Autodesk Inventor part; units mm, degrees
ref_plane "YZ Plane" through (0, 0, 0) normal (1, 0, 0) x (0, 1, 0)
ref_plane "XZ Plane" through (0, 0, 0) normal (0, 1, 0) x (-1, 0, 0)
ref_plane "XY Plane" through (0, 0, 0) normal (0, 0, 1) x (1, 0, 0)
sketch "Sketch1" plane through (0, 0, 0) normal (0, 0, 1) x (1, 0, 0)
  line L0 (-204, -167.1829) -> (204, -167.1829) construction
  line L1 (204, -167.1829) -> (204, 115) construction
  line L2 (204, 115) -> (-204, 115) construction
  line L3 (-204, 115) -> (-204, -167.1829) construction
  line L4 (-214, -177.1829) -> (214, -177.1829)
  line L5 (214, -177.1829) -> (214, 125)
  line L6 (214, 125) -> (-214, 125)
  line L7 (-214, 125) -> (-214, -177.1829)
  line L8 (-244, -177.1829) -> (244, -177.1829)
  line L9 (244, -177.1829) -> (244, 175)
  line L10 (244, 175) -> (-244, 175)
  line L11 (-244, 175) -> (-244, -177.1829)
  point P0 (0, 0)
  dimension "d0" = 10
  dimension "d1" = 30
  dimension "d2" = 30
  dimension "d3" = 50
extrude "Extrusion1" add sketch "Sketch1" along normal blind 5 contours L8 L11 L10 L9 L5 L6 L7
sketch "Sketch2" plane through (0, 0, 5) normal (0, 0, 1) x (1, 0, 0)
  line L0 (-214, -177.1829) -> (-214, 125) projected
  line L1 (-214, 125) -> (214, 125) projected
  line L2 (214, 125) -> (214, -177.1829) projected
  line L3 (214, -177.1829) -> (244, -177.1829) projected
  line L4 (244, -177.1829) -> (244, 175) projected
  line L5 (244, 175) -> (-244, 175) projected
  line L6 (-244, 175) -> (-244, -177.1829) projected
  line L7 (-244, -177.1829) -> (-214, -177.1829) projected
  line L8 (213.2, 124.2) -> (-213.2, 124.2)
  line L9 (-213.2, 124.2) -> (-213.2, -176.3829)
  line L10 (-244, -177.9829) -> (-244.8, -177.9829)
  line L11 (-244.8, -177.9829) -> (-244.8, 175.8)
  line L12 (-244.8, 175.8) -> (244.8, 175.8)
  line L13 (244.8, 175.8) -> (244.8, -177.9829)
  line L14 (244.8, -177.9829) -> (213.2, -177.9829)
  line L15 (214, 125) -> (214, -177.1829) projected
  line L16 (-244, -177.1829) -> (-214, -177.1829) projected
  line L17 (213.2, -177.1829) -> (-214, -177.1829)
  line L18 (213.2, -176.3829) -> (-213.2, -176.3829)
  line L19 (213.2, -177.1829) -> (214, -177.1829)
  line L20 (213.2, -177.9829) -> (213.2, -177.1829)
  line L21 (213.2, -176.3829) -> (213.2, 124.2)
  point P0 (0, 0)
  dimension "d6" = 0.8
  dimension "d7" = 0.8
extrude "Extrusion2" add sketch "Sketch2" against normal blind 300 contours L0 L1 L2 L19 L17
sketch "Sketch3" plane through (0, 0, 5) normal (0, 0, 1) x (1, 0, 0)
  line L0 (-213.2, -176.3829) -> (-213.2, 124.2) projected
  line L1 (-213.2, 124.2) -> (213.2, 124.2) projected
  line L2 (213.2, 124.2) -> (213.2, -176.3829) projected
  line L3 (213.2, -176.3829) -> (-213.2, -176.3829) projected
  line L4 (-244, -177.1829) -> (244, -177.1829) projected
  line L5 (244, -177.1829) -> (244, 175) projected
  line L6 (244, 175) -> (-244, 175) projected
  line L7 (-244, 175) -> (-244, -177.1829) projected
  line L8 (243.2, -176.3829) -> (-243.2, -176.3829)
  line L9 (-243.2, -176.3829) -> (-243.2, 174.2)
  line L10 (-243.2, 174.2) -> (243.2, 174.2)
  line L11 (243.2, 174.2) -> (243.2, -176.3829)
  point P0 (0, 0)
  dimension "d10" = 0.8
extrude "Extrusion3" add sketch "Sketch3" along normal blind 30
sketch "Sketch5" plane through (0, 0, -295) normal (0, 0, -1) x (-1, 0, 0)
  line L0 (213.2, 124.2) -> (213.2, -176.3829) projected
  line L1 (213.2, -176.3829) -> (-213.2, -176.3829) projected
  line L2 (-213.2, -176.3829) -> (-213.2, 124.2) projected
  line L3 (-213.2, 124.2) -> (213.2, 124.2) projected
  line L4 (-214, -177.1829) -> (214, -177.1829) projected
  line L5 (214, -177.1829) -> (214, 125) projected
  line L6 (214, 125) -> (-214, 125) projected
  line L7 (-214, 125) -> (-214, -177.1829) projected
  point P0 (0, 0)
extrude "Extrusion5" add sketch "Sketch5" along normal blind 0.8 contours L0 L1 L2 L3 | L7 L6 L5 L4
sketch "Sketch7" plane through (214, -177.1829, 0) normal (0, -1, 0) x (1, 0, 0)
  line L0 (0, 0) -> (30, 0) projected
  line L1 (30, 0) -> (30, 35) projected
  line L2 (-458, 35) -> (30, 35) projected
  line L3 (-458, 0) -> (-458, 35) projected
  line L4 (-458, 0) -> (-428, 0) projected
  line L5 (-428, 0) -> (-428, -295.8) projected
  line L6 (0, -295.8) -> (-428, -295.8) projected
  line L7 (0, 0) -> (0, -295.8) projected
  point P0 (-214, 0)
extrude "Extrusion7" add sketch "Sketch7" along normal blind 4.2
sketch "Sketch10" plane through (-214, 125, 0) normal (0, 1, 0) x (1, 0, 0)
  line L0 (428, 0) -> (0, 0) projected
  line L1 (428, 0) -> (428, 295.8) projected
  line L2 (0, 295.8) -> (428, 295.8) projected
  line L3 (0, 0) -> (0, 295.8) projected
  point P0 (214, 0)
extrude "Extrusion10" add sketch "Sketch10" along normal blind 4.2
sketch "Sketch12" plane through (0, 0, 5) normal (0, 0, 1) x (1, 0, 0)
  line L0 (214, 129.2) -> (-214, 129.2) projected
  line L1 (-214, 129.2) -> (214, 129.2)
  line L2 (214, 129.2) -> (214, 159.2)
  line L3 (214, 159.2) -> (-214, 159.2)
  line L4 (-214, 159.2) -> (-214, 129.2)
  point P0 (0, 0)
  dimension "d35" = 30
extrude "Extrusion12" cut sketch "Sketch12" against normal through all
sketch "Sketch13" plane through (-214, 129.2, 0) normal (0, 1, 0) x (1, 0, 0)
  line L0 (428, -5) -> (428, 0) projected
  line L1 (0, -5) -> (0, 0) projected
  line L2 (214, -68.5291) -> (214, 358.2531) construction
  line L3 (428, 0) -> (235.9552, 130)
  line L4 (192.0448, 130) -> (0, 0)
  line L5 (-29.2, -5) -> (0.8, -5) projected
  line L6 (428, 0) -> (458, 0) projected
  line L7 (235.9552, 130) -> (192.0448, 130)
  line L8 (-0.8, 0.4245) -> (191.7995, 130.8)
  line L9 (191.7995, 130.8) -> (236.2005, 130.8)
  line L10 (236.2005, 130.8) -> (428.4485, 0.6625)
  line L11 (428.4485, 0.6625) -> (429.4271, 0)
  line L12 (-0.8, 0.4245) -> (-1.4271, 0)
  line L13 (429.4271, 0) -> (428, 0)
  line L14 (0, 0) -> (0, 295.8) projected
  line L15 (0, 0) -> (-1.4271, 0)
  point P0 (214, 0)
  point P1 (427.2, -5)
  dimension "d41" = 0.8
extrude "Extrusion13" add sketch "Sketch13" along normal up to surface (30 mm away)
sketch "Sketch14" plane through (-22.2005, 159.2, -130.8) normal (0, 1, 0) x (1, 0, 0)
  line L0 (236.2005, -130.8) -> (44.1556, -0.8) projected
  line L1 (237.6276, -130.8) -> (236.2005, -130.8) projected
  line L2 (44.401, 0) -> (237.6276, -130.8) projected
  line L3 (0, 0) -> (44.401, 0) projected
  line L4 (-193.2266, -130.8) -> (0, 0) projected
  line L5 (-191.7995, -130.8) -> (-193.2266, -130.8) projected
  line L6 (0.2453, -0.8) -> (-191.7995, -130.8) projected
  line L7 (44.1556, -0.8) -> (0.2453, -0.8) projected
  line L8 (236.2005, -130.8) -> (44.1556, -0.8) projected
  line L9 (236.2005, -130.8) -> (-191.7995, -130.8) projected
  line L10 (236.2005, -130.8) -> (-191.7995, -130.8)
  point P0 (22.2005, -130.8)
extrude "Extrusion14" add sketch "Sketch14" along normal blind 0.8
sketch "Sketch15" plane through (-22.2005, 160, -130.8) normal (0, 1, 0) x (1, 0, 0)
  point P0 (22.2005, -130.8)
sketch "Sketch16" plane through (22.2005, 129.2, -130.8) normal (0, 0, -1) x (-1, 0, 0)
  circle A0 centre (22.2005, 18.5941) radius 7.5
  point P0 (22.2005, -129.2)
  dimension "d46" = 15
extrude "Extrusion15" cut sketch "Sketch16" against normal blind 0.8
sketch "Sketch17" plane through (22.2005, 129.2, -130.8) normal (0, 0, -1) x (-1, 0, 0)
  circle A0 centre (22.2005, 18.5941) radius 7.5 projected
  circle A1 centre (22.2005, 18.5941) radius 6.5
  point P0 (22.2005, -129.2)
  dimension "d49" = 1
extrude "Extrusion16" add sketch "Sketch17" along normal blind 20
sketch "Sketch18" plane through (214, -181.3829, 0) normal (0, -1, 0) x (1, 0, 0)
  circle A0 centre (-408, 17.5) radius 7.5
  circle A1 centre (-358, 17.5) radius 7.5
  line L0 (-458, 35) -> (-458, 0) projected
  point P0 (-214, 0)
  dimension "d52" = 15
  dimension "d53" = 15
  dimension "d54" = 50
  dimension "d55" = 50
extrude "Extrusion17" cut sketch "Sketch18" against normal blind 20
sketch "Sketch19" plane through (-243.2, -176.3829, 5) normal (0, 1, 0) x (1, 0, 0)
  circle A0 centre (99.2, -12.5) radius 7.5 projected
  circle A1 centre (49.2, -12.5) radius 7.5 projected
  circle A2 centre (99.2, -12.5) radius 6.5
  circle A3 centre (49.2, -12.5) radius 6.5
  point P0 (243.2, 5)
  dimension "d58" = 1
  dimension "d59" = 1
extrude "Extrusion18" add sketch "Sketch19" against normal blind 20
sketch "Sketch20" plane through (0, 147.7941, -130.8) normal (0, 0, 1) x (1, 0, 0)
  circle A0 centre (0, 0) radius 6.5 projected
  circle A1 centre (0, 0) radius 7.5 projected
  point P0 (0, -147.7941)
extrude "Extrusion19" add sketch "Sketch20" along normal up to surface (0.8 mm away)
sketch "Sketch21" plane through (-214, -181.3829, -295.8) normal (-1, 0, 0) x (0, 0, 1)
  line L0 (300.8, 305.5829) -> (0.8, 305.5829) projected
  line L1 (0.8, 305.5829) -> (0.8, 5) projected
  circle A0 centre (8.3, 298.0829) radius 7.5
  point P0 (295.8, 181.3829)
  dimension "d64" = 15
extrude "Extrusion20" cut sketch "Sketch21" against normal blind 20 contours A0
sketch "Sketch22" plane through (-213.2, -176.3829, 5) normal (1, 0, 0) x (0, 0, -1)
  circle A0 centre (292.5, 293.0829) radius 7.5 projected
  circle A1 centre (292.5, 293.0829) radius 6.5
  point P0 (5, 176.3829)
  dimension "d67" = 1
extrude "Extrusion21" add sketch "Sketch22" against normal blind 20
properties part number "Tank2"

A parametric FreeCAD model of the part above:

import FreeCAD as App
import Part
import Sketcher
from FreeCAD import Vector

doc = App.newDocument("Part")
body = doc.addObject("PartDesign::Body", "Body")
body.AllowCompound = True

# Sketch on XY plane
sketch1 = body.newObject("Sketcher::SketchObject", "Sketch")
sketch1.AttachmentSupport = (doc.getObject("XY_Plane"), [""])
sketch1.MapMode = "FlatFace"
sketch1.addGeometry(Part.LineSegment(Vector(-244, -177, 0), Vector(-214, -177, 0)), False)
sketch1.addGeometry(Part.LineSegment(Vector(-214, -177, 0), Vector(-214, 125, 0)), False)
sketch1.addGeometry(Part.LineSegment(Vector(-214, 125, 0), Vector(214, 125, 0)), False)
sketch1.addGeometry(Part.LineSegment(Vector(214, 125, 0), Vector(214, -177, 0)), False)
sketch1.addGeometry(Part.LineSegment(Vector(214, -177, 0), Vector(244, -177, 0)), False)
sketch1.addGeometry(Part.LineSegment(Vector(244, -177, 0), Vector(244, 175, 0)), False)
sketch1.addGeometry(Part.LineSegment(Vector(244, 175, 0), Vector(-244, 175, 0)), False)
sketch1.addGeometry(Part.LineSegment(Vector(-244, 175, 0), Vector(-244, -177, 0)), False)
sketch1.addConstraint(Sketcher.Constraint("Coincident", 0, 2, 1, 1))
sketch1.addConstraint(Sketcher.Constraint("Coincident", 1, 2, 2, 1))
sketch1.addConstraint(Sketcher.Constraint("Coincident", 2, 2, 3, 1))
sketch1.addConstraint(Sketcher.Constraint("Coincident", 3, 2, 4, 1))
sketch1.addConstraint(Sketcher.Constraint("Coincident", 4, 2, 5, 1))
sketch1.addConstraint(Sketcher.Constraint("Coincident", 5, 2, 6, 1))
sketch1.addConstraint(Sketcher.Constraint("Coincident", 6, 2, 7, 1))
sketch1.addConstraint(Sketcher.Constraint("Coincident", 7, 2, 0, 1))
sketch1.addConstraint(Sketcher.Constraint("Horizontal", 0))
sketch1.addConstraint(Sketcher.Constraint("Vertical", 1))
sketch1.addConstraint(Sketcher.Constraint("Horizontal", 2))
sketch1.addConstraint(Sketcher.Constraint("Vertical", 3))
sketch1.addConstraint(Sketcher.Constraint("Horizontal", 4))
sketch1.addConstraint(Sketcher.Constraint("Vertical", 5))
sketch1.addConstraint(Sketcher.Constraint("Horizontal", 6))
sketch1.addConstraint(Sketcher.Constraint("Vertical", 7))
sketch1.addConstraint(Sketcher.Constraint("Symmetric", 0, 2, 3, 2, -2))
sketch1.addConstraint(Sketcher.Constraint("Equal", 0, 4))
sketch1.addConstraint(Sketcher.Constraint("DistanceX", 0, 1, 0, 2, 30.0))
sketch1.addConstraint(Sketcher.Constraint("DistanceY", 2, 2, 5, 2, 50.0))
sketch1.addConstraint(Sketcher.Constraint("DistanceX", 2, 1, 2, 2, 428.0))
sketch1.addConstraint(Sketcher.Constraint("DistanceY", -1, 1, 1, 2, 125.0))
sketch1.addConstraint(Sketcher.Constraint("DistanceY", 1, 1, 1, 2, 302.183))
pad1 = body.newObject("PartDesign::Pad", "Pad")
pad1.Profile = sketch1
pad1.Length = 5

# Sketch on XY plane
sketch2 = body.newObject("Sketcher::SketchObject", "Sketch001")
sketch2.AttachmentSupport = (doc.getObject("XY_Plane"), [""])
sketch2.MapMode = "FlatFace"
sketch2.AttachmentOffset = App.Placement(Vector(0, 0, 5), App.Rotation())
sketch2.addGeometry(Part.LineSegment(Vector(-214, 125, 0), Vector(-214, -177, 0)), False)
sketch2.addGeometry(Part.LineSegment(Vector(-214, -177, 0), Vector(214, -177, 0)), False)
sketch2.addGeometry(Part.LineSegment(Vector(214, -177, 0), Vector(214, 125, 0)), False)
sketch2.addGeometry(Part.LineSegment(Vector(214, 125, 0), Vector(-214, 125, 0)), False)
sketch2.addGeometry(Part.LineSegment(Vector(-213, 124, 0), Vector(213, 124, 0)), False)
sketch2.addGeometry(Part.LineSegment(Vector(213, 124, 0), Vector(213, -176, 0)), False)
sketch2.addGeometry(Part.LineSegment(Vector(213, -176, 0), Vector(-213, -176, 0)), False)
sketch2.addGeometry(Part.LineSegment(Vector(-213, -176, 0), Vector(-213, 124, 0)), False)
sketch2.addConstraint(Sketcher.Constraint("Coincident", 0, 2, 1, 1))
sketch2.addConstraint(Sketcher.Constraint("Coincident", 1, 2, 2, 1))
sketch2.addConstraint(Sketcher.Constraint("Coincident", 2, 2, 3, 1))
sketch2.addConstraint(Sketcher.Constraint("Coincident", 3, 2, 0, 1))
sketch2.addConstraint(Sketcher.Constraint("Coincident", 4, 2, 5, 1))
sketch2.addConstraint(Sketcher.Constraint("Coincident", 5, 2, 6, 1))
sketch2.addConstraint(Sketcher.Constraint("Coincident", 6, 2, 7, 1))
sketch2.addConstraint(Sketcher.Constraint("Coincident", 7, 2, 4, 1))
sketch2.addConstraint(Sketcher.Constraint("Vertical", 0))
sketch2.addConstraint(Sketcher.Constraint("Horizontal", 1))
sketch2.addConstraint(Sketcher.Constraint("Vertical", 2))
sketch2.addConstraint(Sketcher.Constraint("Horizontal", 3))
sketch2.addConstraint(Sketcher.Constraint("Horizontal", 4))
sketch2.addConstraint(Sketcher.Constraint("Vertical", 5))
sketch2.addConstraint(Sketcher.Constraint("Horizontal", 6))
sketch2.addConstraint(Sketcher.Constraint("Vertical", 7))
sketch2.addConstraint(Sketcher.Constraint("DistanceX", 4, 2, 2, 2, 0.8))
sketch2.addConstraint(Sketcher.Constraint("DistanceY", 4, 2, 2, 2, 0.8))
sketch2.addConstraint(Sketcher.Constraint("DistanceY", 1, 2, 5, 2, 0.8))
sketch2.addConstraint(Sketcher.Constraint("DistanceX", 0, 2, 6, 2, 0.8))
sketch2.addConstraint(Sketcher.Constraint("DistanceX", 1, 1, 1, 2, 428.0))
sketch2.addConstraint(Sketcher.Constraint("DistanceX", 0, 2, -1, 1, 214.0))
sketch2.addConstraint(Sketcher.Constraint("DistanceY", -1, 1, 2, 2, 125.0))
sketch2.addConstraint(Sketcher.Constraint("DistanceY", 0, 2, 0, 1, 302.183))
pad2 = body.newObject("PartDesign::Pad", "Pad001")
pad2.Profile = sketch2
pad2.Length = 300
pad2.Reversed = True

# Sketch on XY plane
sketch3 = body.newObject("Sketcher::SketchObject", "Sketch002")
sketch3.AttachmentSupport = (doc.getObject("XY_Plane"), [""])
sketch3.MapMode = "FlatFace"
sketch3.AttachmentOffset = App.Placement(Vector(0, 0, 5), App.Rotation())
sketch3.addGeometry(Part.LineSegment(Vector(-244, 175, 0), Vector(-244, -177, 0)), False)
sketch3.addGeometry(Part.LineSegment(Vector(-244, -177, 0), Vector(244, -177, 0)), False)
sketch3.addGeometry(Part.LineSegment(Vector(244, -177, 0), Vector(244, 175, 0)), False)
sketch3.addGeometry(Part.LineSegment(Vector(244, 175, 0), Vector(-244, 175, 0)), False)
sketch3.addGeometry(Part.LineSegment(Vector(243, -176, 0), Vector(-243, -176, 0)), False)
sketch3.addGeometry(Part.LineSegment(Vector(-243, -176, 0), Vector(-243, 174, 0)), False)
sketch3.addGeometry(Part.LineSegment(Vector(-243, 174, 0), Vector(243, 174, 0)), False)
sketch3.addGeometry(Part.LineSegment(Vector(243, 174, 0), Vector(243, -176, 0)), False)
sketch3.addConstraint(Sketcher.Constraint("Coincident", 0, 2, 1, 1))
sketch3.addConstraint(Sketcher.Constraint("Coincident", 1, 2, 2, 1))
sketch3.addConstraint(Sketcher.Constraint("Coincident", 2, 2, 3, 1))
sketch3.addConstraint(Sketcher.Constraint("Coincident", 3, 2, 0, 1))
sketch3.addConstraint(Sketcher.Constraint("Coincident", 4, 2, 5, 1))
sketch3.addConstraint(Sketcher.Constraint("Coincident", 5, 2, 6, 1))
sketch3.addConstraint(Sketcher.Constraint("Coincident", 6, 2, 7, 1))
sketch3.addConstraint(Sketcher.Constraint("Coincident", 7, 2, 4, 1))
sketch3.addConstraint(Sketcher.Constraint("Vertical", 0))
sketch3.addConstraint(Sketcher.Constraint("Horizontal", 1))
sketch3.addConstraint(Sketcher.Constraint("Vertical", 2))
sketch3.addConstraint(Sketcher.Constraint("Horizontal", 3))
sketch3.addConstraint(Sketcher.Constraint("Horizontal", 4))
sketch3.addConstraint(Sketcher.Constraint("Vertical", 5))
sketch3.addConstraint(Sketcher.Constraint("Horizontal", 6))
sketch3.addConstraint(Sketcher.Constraint("Vertical", 7))
sketch3.addConstraint(Sketcher.Constraint("DistanceX", 0, 2, 4, 2, 0.8))
sketch3.addConstraint(Sketcher.Constraint("DistanceY", 0, 2, 4, 2, 0.8))
sketch3.addConstraint(Sketcher.Constraint("DistanceY", 5, 2, 3, 2, 0.8))
sketch3.addConstraint(Sketcher.Constraint("DistanceX", 6, 2, 2, 2, 0.8))
sketch3.addConstraint(Sketcher.Constraint("DistanceX", 1, 1, 1, 2, 488.0))
sketch3.addConstraint(Sketcher.Constraint("DistanceX", 0, 2, -1, 1, 244.0))
sketch3.addConstraint(Sketcher.Constraint("DistanceY", -1, 1, 2, 2, 175.0))
sketch3.addConstraint(Sketcher.Constraint("DistanceY", 0, 2, 0, 1, 352.183))
pad3 = body.newObject("PartDesign::Pad", "Pad002")
pad3.Profile = sketch3
pad3.Length = 30

# Sketch on XY plane
sketch4 = body.newObject("Sketcher::SketchObject", "Sketch003")
sketch4.AttachmentSupport = (doc.getObject("XY_Plane"), [""])
sketch4.MapMode = "FlatFace"
sketch4.AttachmentOffset = App.Placement(Vector(0, 0, -295), App.Rotation())
sketch4.addGeometry(Part.LineSegment(Vector(214, 125, 0), Vector(214, -177, 0)), False)
sketch4.addGeometry(Part.LineSegment(Vector(214, -177, 0), Vector(-214, -177, 0)), False)
sketch4.addGeometry(Part.LineSegment(Vector(-214, -177, 0), Vector(-214, 125, 0)), False)
sketch4.addGeometry(Part.LineSegment(Vector(-214, 125, 0), Vector(214, 125, 0)), False)
sketch4.addConstraint(Sketcher.Constraint("Coincident", 0, 2, 1, 1))
sketch4.addConstraint(Sketcher.Constraint("Coincident", 1, 2, 2, 1))
sketch4.addConstraint(Sketcher.Constraint("Coincident", 2, 2, 3, 1))
sketch4.addConstraint(Sketcher.Constraint("Coincident", 3, 2, 0, 1))
sketch4.addConstraint(Sketcher.Constraint("Vertical", 0))
sketch4.addConstraint(Sketcher.Constraint("Horizontal", 1))
sketch4.addConstraint(Sketcher.Constraint("Vertical", 2))
sketch4.addConstraint(Sketcher.Constraint("Horizontal", 3))
sketch4.addConstraint(Sketcher.Constraint("DistanceX", 1, 2, 1, 1, 428.0))
sketch4.addConstraint(Sketcher.Constraint("DistanceX", -1, 1, 0, 2, 214.0))
sketch4.addConstraint(Sketcher.Constraint("DistanceY", -1, 1, 2, 2, 125.0))
sketch4.addConstraint(Sketcher.Constraint("DistanceY", 0, 2, 0, 1, 302.183))
pad4 = body.newObject("PartDesign::Pad", "Pad003")
pad4.Profile = sketch4
pad4.Length = 0.8
pad4.Reversed = True

# Sketch on XZ plane
sketch5 = body.newObject("Sketcher::SketchObject", "Sketch004")
sketch5.AttachmentSupport = (doc.getObject("XZ_Plane"), [""])
sketch5.MapMode = "FlatFace"
sketch5.AttachmentOffset = App.Placement(Vector(0, 0, 177.1829), App.Rotation())
sketch5.addGeometry(Part.LineSegment(Vector(214, -296, 0), Vector(214, 0, 0)), False)
sketch5.addGeometry(Part.LineSegment(Vector(214, 0, 0), Vector(244, 0, 0)), False)
sketch5.addGeometry(Part.LineSegment(Vector(244, 0, 0), Vector(244, 35, 0)), False)
sketch5.addGeometry(Part.LineSegment(Vector(244, 35, 0), Vector(-244, 35, 0)), False)
sketch5.addGeometry(Part.LineSegment(Vector(-244, 35, 0), Vector(-244, 0, 0)), False)
sketch5.addGeometry(Part.LineSegment(Vector(-244, 0, 0), Vector(-214, 0, 0)), False)
sketch5.addGeometry(Part.LineSegment(Vector(-214, 0, 0), Vector(-214, -296, 0)), False)
sketch5.addGeometry(Part.LineSegment(Vector(-214, -296, 0), Vector(214, -296, 0)), False)
sketch5.addConstraint(Sketcher.Constraint("Coincident", 0, 2, 1, 1))
sketch5.addConstraint(Sketcher.Constraint("Coincident", 1, 2, 2, 1))
sketch5.addConstraint(Sketcher.Constraint("Coincident", 2, 2, 3, 1))
sketch5.addConstraint(Sketcher.Constraint("Coincident", 3, 2, 4, 1))
sketch5.addConstraint(Sketcher.Constraint("Coincident", 4, 2, 5, 1))
sketch5.addConstraint(Sketcher.Constraint("Coincident", 5, 2, 6, 1))
sketch5.addConstraint(Sketcher.Constraint("Coincident", 6, 2, 7, 1))
sketch5.addConstraint(Sketcher.Constraint("Coincident", 7, 2, 0, 1))
sketch5.addConstraint(Sketcher.Constraint("Vertical", 0))
sketch5.addConstraint(Sketcher.Constraint("Horizontal", 1))
sketch5.addConstraint(Sketcher.Constraint("Vertical", 2))
sketch5.addConstraint(Sketcher.Constraint("Horizontal", 3))
sketch5.addConstraint(Sketcher.Constraint("Vertical", 4))
sketch5.addConstraint(Sketcher.Constraint("Horizontal", 5))
sketch5.addConstraint(Sketcher.Constraint("Vertical", 6))
sketch5.addConstraint(Sketcher.Constraint("Horizontal", 7))
sketch5.addConstraint(Sketcher.Constraint("Symmetric", 1, 2, 4, 2, -1, 1))
sketch5.addConstraint(Sketcher.Constraint("Symmetric", 0, 2, 5, 2, -2))
sketch5.addConstraint(Sketcher.Constraint("DistanceX", 1, 1, 1, 2, 30.0))
sketch5.addConstraint(Sketcher.Constraint("DistanceX", 3, 2, 3, 1, 488.0))
sketch5.addConstraint(Sketcher.Constraint("DistanceY", 2, 1, 2, 2, 35.0))
sketch5.addConstraint(Sketcher.Constraint("DistanceY", 0, 1, 0, 2, 295.8))
pad5 = body.newObject("PartDesign::Pad", "Pad004")
pad5.Profile = sketch5
pad5.Length = 4.2

# Sketch on XZ plane
sketch6 = body.newObject("Sketcher::SketchObject", "Sketch005")
sketch6.AttachmentSupport = (doc.getObject("XZ_Plane"), [""])
sketch6.MapMode = "FlatFace"
sketch6.AttachmentOffset = App.Placement(Vector(0, 0, -125), App.Rotation())
sketch6.addGeometry(Part.LineSegment(Vector(-214, 0, 0), Vector(214, 0, 0)), False)
sketch6.addGeometry(Part.LineSegment(Vector(214, 0, 0), Vector(214, -296, 0)), False)
sketch6.addGeometry(Part.LineSegment(Vector(214, -296, 0), Vector(-214, -296, 0)), False)
sketch6.addGeometry(Part.LineSegment(Vector(-214, -296, 0), Vector(-214, 0, 0)), False)
sketch6.addConstraint(Sketcher.Constraint("Coincident", 0, 2, 1, 1))
sketch6.addConstraint(Sketcher.Constraint("Coincident", 1, 2, 2, 1))
sketch6.addConstraint(Sketcher.Constraint("Coincident", 2, 2, 3, 1))
sketch6.addConstraint(Sketcher.Constraint("Coincident", 3, 2, 0, 1))
sketch6.addConstraint(Sketcher.Constraint("Horizontal", 0))
sketch6.addConstraint(Sketcher.Constraint("Vertical", 1))
sketch6.addConstraint(Sketcher.Constraint("Horizontal", 2))
sketch6.addConstraint(Sketcher.Constraint("Vertical", 3))
sketch6.addConstraint(Sketcher.Constraint("Symmetric", 0, 2, 3, 2, -1, 1))
sketch6.addConstraint(Sketcher.Constraint("DistanceX", 0, 1, 0, 2, 428.0))
sketch6.addConstraint(Sketcher.Constraint("DistanceY", 1, 2, 1, 1, 295.8))
pad6 = body.newObject("PartDesign::Pad", "Pad005")
pad6.Profile = sketch6
pad6.Length = 4.2
pad6.Reversed = True

# Sketch on XY plane
sketch7 = body.newObject("Sketcher::SketchObject", "Sketch006")
sketch7.AttachmentSupport = (doc.getObject("XY_Plane"), [""])
sketch7.MapMode = "FlatFace"
sketch7.AttachmentOffset = App.Placement(Vector(0, 0, 5), App.Rotation())
sketch7.addGeometry(Part.LineSegment(Vector(-214, 129, 0), Vector(214, 129, 0)), False)
sketch7.addGeometry(Part.LineSegment(Vector(214, 129, 0), Vector(214, 159, 0)), False)
sketch7.addGeometry(Part.LineSegment(Vector(214, 159, 0), Vector(-214, 159, 0)), False)
sketch7.addGeometry(Part.LineSegment(Vector(-214, 159, 0), Vector(-214, 129, 0)), False)
sketch7.addConstraint(Sketcher.Constraint("Coincident", 0, 2, 1, 1))
sketch7.addConstraint(Sketcher.Constraint("Coincident", 1, 2, 2, 1))
sketch7.addConstraint(Sketcher.Constraint("Coincident", 2, 2, 3, 1))
sketch7.addConstraint(Sketcher.Constraint("Coincident", 3, 2, 0, 1))
sketch7.addConstraint(Sketcher.Constraint("Horizontal", 0))
sketch7.addConstraint(Sketcher.Constraint("Vertical", 1))
sketch7.addConstraint(Sketcher.Constraint("Horizontal", 2))
sketch7.addConstraint(Sketcher.Constraint("Vertical", 3))
sketch7.addConstraint(Sketcher.Constraint("DistanceY", 1, 1, 1, 2, 30.0))
sketch7.addConstraint(Sketcher.Constraint("DistanceX", 0, 1, 0, 2, 428.0))
sketch7.addConstraint(Sketcher.Constraint("DistanceX", -1, 1, 0, 2, 214.0))
sketch7.addConstraint(Sketcher.Constraint("DistanceY", -1, 1, 0, 2, 129.2))
pocket1 = body.newObject("PartDesign::Pocket", "Pocket")
pocket1.Profile = sketch7
pocket1.Type = "ThroughAll"

# Sketch on XZ plane
sketch8 = body.newObject("Sketcher::SketchObject", "Sketch007")
sketch8.AttachmentSupport = (doc.getObject("XZ_Plane"), [""])
sketch8.MapMode = "FlatFace"
sketch8.AttachmentOffset = App.Placement(Vector(0, 0, -129.2), App.Rotation())
sketch8.addGeometry(Part.LineSegment(Vector(22, -130, 0), Vector(214, 0, 0)), False)
sketch8.addGeometry(Part.LineSegment(Vector(214, 0, 0), Vector(215.4, 0, 0)), False)
sketch8.addGeometry(Part.LineSegment(Vector(215.4, 0, 0), Vector(214.4, -0.7, 0)), False)
sketch8.addGeometry(Part.LineSegment(Vector(214.4, -0.7, 0), Vector(22.2, -130.8, 0)), False)
sketch8.addGeometry(Part.LineSegment(Vector(22.2, -130.8, 0), Vector(-22.2, -130.8, 0)), False)
sketch8.addGeometry(Part.LineSegment(Vector(-22.2, -130.8, 0), Vector(-214.8, -0.4, 0)), False)
sketch8.addGeometry(Part.LineSegment(Vector(-214.8, -0.4, 0), Vector(-215.4, 0, 0)), False)
sketch8.addGeometry(Part.LineSegment(Vector(-215.4, 0, 0), Vector(-214, 0, 0)), False)
sketch8.addGeometry(Part.LineSegment(Vector(-214, 0, 0), Vector(-22, -130, 0)), False)
sketch8.addGeometry(Part.LineSegment(Vector(-22, -130, 0), Vector(22, -130, 0)), False)
sketch8.addConstraint(Sketcher.Constraint("Coincident", 0, 2, 1, 1))
sketch8.addConstraint(Sketcher.Constraint("Coincident", 1, 2, 2, 1))
sketch8.addConstraint(Sketcher.Constraint("Coincident", 2, 2, 3, 1))
sketch8.addConstraint(Sketcher.Constraint("Coincident", 3, 2, 4, 1))
sketch8.addConstraint(Sketcher.Constraint("Coincident", 4, 2, 5, 1))
sketch8.addConstraint(Sketcher.Constraint("Coincident", 5, 2, 6, 1))
sketch8.addConstraint(Sketcher.Constraint("Coincident", 6, 2, 7, 1))
sketch8.addConstraint(Sketcher.Constraint("Coincident", 7, 2, 8, 1))
sketch8.addConstraint(Sketcher.Constraint("Coincident", 8, 2, 9, 1))
sketch8.addConstraint(Sketcher.Constraint("Coincident", 9, 2, 0, 1))
sketch8.addConstraint(Sketcher.Constraint("Horizontal", 1))
sketch8.addConstraint(Sketcher.Constraint("Horizontal", 4))
sketch8.addConstraint(Sketcher.Constraint("Horizontal", 7))
sketch8.addConstraint(Sketcher.Constraint("Horizontal", 9))
sketch8.addConstraint(Sketcher.Constraint("Symmetric", 1, 2, 6, 2, -1, 1))
sketch8.addConstraint(Sketcher.Constraint("Symmetric", 0, 2, 7, 2, -2))
sketch8.addConstraint(Sketcher.Constraint("Parallel", 0, 2))
sketch8.addConstraint(Sketcher.Constraint("Parallel", 2, 3))
sketch8.addConstraint(Sketcher.Constraint("Parallel", 5, 6))
sketch8.addConstraint(Sketcher.Constraint("Parallel", 5, 8))
sketch8.addConstraint(Sketcher.Constraint("Equal", 0, 8))
sketch8.addConstraint(Sketcher.Constraint("DistanceX", 5, 2, 7, 2, 0.8))
sketch8.addConstraint(Sketcher.Constraint("DistanceY", 4, 2, 8, 2, 0.8))
sketch8.addConstraint(Sketcher.Constraint("DistanceX", -1, 1, 0, 2, 214.0))
sketch8.addConstraint(Sketcher.Constraint("DistanceY", 8, 2, -1, 1, 130.0))
sketch8.addConstraint(Sketcher.Constraint("DistanceX", 1, 1, 1, 2, 1.427))
sketch8.addConstraint(Sketcher.Constraint("DistanceX", 4, 2, 4, 1, 44.401))
sketch8.addConstraint(Sketcher.Constraint("Distance", 3, 232.153))
pad7 = body.newObject("PartDesign::Pad", "Pad006")
pad7.Profile = sketch8
pad7.Length = 30
pad7.Reversed = True

# Sketch on XZ plane
sketch9 = body.newObject("Sketcher::SketchObject", "Sketch008")
sketch9.AttachmentSupport = (doc.getObject("XZ_Plane"), [""])
sketch9.MapMode = "FlatFace"
sketch9.AttachmentOffset = App.Placement(Vector(0, 0, -159.2), App.Rotation())
sketch9.addGeometry(Part.LineSegment(Vector(215, 0, 0), Vector(22, -131, 0)), False)
sketch9.addGeometry(Part.LineSegment(Vector(22, -131, 0), Vector(-22, -131, 0)), False)
sketch9.addGeometry(Part.LineSegment(Vector(-22, -131, 0), Vector(-215, 0, 0)), False)
sketch9.addGeometry(Part.LineSegment(Vector(-215, 0, 0), Vector(215, 0, 0)), False)
sketch9.addConstraint(Sketcher.Constraint("Coincident", 0, 2, 1, 1))
sketch9.addConstraint(Sketcher.Constraint("Coincident", 1, 2, 2, 1))
sketch9.addConstraint(Sketcher.Constraint("Coincident", 2, 2, 3, 1))
sketch9.addConstraint(Sketcher.Constraint("Coincident", 3, 2, 0, 1))
sketch9.addConstraint(Sketcher.Constraint("Horizontal", 1))
sketch9.addConstraint(Sketcher.Constraint("Horizontal", 3))
sketch9.addConstraint(Sketcher.Constraint("Symmetric", 2, 2, 3, 2, -1, 1))
sketch9.addConstraint(Sketcher.Constraint("Equal", 0, 2))
sketch9.addConstraint(Sketcher.Constraint("DistanceY", 0, 2, -1, 1, 130.8))
sketch9.addConstraint(Sketcher.Constraint("DistanceX", 1, 2, 1, 1, 44.401))
sketch9.addConstraint(Sketcher.Constraint("DistanceX", 3, 1, 3, 2, 430.8542))
pad8 = body.newObject("PartDesign::Pad", "Pad007")
pad8.Profile = sketch9
pad8.Length = 0.8
pad8.Reversed = True

# Sketch on XY plane
sketch10 = body.newObject("Sketcher::SketchObject", "Sketch009")
sketch10.AttachmentSupport = (doc.getObject("XY_Plane"), [""])
sketch10.MapMode = "FlatFace"
sketch10.AttachmentOffset = App.Placement(Vector(0, 0, -130.8), App.Rotation())
sketch10.addGeometry(Part.Circle(Vector(0, 148, 0), Vector(0, 0, 1), 8), False)
sketch10.addConstraint(Sketcher.Constraint("PointOnObject", 0, 3, -2))
sketch10.addConstraint(Sketcher.Constraint("Diameter", 0, 15.0))
sketch10.addConstraint(Sketcher.Constraint("DistanceY", -1, 1, 0, 3, 147.794))
pocket2 = body.newObject("PartDesign::Pocket", "Pocket001")
pocket2.Profile = sketch10
pocket2.Length = 0.8
pocket2.Reversed = True

# Sketch on XY plane
sketch11 = body.newObject("Sketcher::SketchObject", "Sketch010")
sketch11.AttachmentSupport = (doc.getObject("XY_Plane"), [""])
sketch11.MapMode = "FlatFace"
sketch11.AttachmentOffset = App.Placement(Vector(0, 0, -130.8), App.Rotation())
sketch11.addGeometry(Part.Circle(Vector(0, 148, 0), Vector(0, 0, 1), 8), False)
sketch11.addGeometry(Part.Circle(Vector(0, 148, 0), Vector(0, 0, 1), 6), False)
sketch11.addConstraint(Sketcher.Constraint("Coincident", 1, 3, 0, 3))
sketch11.addConstraint(Sketcher.Constraint("PointOnObject", 0, 3, -2))
sketch11.addConstraint(Sketcher.Constraint("Diameter", 0, 15.0))
sketch11.addConstraint(Sketcher.Constraint("Diameter", 1, 13.0))
sketch11.addConstraint(Sketcher.Constraint("DistanceY", -1, 1, 0, 3, 147.794))
pad9 = body.newObject("PartDesign::Pad", "Pad008")
pad9.Profile = sketch11
pad9.Length = 20
pad9.Reversed = True

# Sketch on XZ plane
sketch12 = body.newObject("Sketcher::SketchObject", "Sketch011")
sketch12.AttachmentSupport = (doc.getObject("XZ_Plane"), [""])
sketch12.MapMode = "FlatFace"
sketch12.AttachmentOffset = App.Placement(Vector(0, 0, 181.3829), App.Rotation())
sketch12.addGeometry(Part.Circle(Vector(-194, 18, 0), Vector(0, 0, 1), 8), False)
sketch12.addGeometry(Part.Circle(Vector(-144, 18, 0), Vector(0, 0, 1), 8), False)
sketch12.addConstraint(Sketcher.Constraint("Equal", 0, 1))
sketch12.addConstraint(Sketcher.Constraint("Horizontal", 0, 3, 1, 3))
sketch12.addConstraint(Sketcher.Constraint("Diameter", 0, 15.0))
sketch12.addConstraint(Sketcher.Constraint("DistanceX", 0, 3, 1, 3, 50.0))
sketch12.addConstraint(Sketcher.Constraint("DistanceX", 0, 3, -1, 1, 194.0))
sketch12.addConstraint(Sketcher.Constraint("DistanceY", -1, 1, 0, 3, 17.5))
pocket3 = body.newObject("PartDesign::Pocket", "Pocket002")
pocket3.Profile = sketch12
pocket3.Length = 20

# Sketch on XZ plane
sketch13 = body.newObject("Sketcher::SketchObject", "Sketch012")
sketch13.AttachmentSupport = (doc.getObject("XZ_Plane"), [""])
sketch13.MapMode = "FlatFace"
sketch13.AttachmentOffset = App.Placement(Vector(0, 0, 176.3829), App.Rotation())
sketch13.addGeometry(Part.Circle(Vector(-144, 18, 0), Vector(0, 0, 1), 8), False)
sketch13.addGeometry(Part.Circle(Vector(-144, 18, 0), Vector(0, 0, 1), 6), False)
sketch13.addGeometry(Part.Circle(Vector(-194, 18, 0), Vector(0, 0, 1), 8), False)
sketch13.addGeometry(Part.Circle(Vector(-194, 18, 0), Vector(0, 0, 1), 6), False)
sketch13.addConstraint(Sketcher.Constraint("Coincident", 1, 3, 0, 3))
sketch13.addConstraint(Sketcher.Constraint("Coincident", 3, 3, 2, 3))
sketch13.addConstraint(Sketcher.Constraint("Equal", 0, 2))
sketch13.addConstraint(Sketcher.Constraint("Equal", 1, 3))
sketch13.addConstraint(Sketcher.Constraint("Horizontal", 1, 3, 2, 3))
sketch13.addConstraint(Sketcher.Constraint("Diameter", 0, 15.0))
sketch13.addConstraint(Sketcher.Constraint("Diameter", 1, 13.0))
sketch13.addConstraint(Sketcher.Constraint("DistanceX", 0, 3, -1, 1, 144.0))
sketch13.addConstraint(Sketcher.Constraint("DistanceX", 2, 3, -1, 1, 194.0))
sketch13.addConstraint(Sketcher.Constraint("DistanceY", -1, 1, 0, 3, 17.5))
pad10 = body.newObject("PartDesign::Pad", "Pad009")
pad10.Profile = sketch13
pad10.Length = 20

# Sketch on XY plane
sketch14 = body.newObject("Sketcher::SketchObject", "Sketch013")
sketch14.AttachmentSupport = (doc.getObject("XY_Plane"), [""])
sketch14.MapMode = "FlatFace"
sketch14.AttachmentOffset = App.Placement(Vector(0, 0, -130.8), App.Rotation())
sketch14.addGeometry(Part.Circle(Vector(0, 148, 0), Vector(0, 0, 1), 8), False)
sketch14.addGeometry(Part.Circle(Vector(0, 148, 0), Vector(0, 0, 1), 6), False)
sketch14.addConstraint(Sketcher.Constraint("Coincident", 1, 3, 0, 3))
sketch14.addConstraint(Sketcher.Constraint("PointOnObject", 0, 3, -2))
sketch14.addConstraint(Sketcher.Constraint("Diameter", 0, 15.0))
sketch14.addConstraint(Sketcher.Constraint("Diameter", 1, 13.0))
sketch14.addConstraint(Sketcher.Constraint("DistanceY", -1, 1, 0, 3, 147.794))
pad11 = body.newObject("PartDesign::Pad", "Pad010")
pad11.Profile = sketch14
pad11.Length = 0.8

# Sketch on YZ plane
sketch15 = body.newObject("Sketcher::SketchObject", "Sketch014")
sketch15.AttachmentSupport = (doc.getObject("YZ_Plane"), [""])
sketch15.MapMode = "FlatFace"
sketch15.AttachmentOffset = App.Placement(Vector(0, 0, -214), App.Rotation())
sketch15.addGeometry(Part.Circle(Vector(117, -288, 0), Vector(0, 0, 1), 8), False)
sketch15.addConstraint(Sketcher.Constraint("Diameter", 0, 15.0))
sketch15.addConstraint(Sketcher.Constraint("DistanceX", -1, 1, 0, 3, 116.7))
sketch15.addConstraint(Sketcher.Constraint("DistanceY", 0, 3, -1, 1, 287.5))
pocket4 = body.newObject("PartDesign::Pocket", "Pocket003")
pocket4.Profile = sketch15
pocket4.Length = 20
pocket4.Reversed = True

# Sketch on YZ plane
sketch16 = body.newObject("Sketcher::SketchObject", "Sketch015")
sketch16.AttachmentSupport = (doc.getObject("YZ_Plane"), [""])
sketch16.MapMode = "FlatFace"
sketch16.AttachmentOffset = App.Placement(Vector(0, 0, -213.2), App.Rotation())
sketch16.addGeometry(Part.Circle(Vector(117, -288, 0), Vector(0, 0, 1), 8), False)
sketch16.addGeometry(Part.Circle(Vector(117, -288, 0), Vector(0, 0, 1), 6), False)
sketch16.addConstraint(Sketcher.Constraint("Coincident", 1, 3, 0, 3))
sketch16.addConstraint(Sketcher.Constraint("Diameter", 0, 15.0))
sketch16.addConstraint(Sketcher.Constraint("Diameter", 1, 13.0))
sketch16.addConstraint(Sketcher.Constraint("DistanceX", -1, 1, 0, 3, 116.7))
sketch16.addConstraint(Sketcher.Constraint("DistanceY", 0, 3, -1, 1, 287.5))
pad12 = body.newObject("PartDesign::Pad", "Pad011")
pad12.Profile = sketch16
pad12.Length = 20
pad12.Reversed = True

doc.recompute()
